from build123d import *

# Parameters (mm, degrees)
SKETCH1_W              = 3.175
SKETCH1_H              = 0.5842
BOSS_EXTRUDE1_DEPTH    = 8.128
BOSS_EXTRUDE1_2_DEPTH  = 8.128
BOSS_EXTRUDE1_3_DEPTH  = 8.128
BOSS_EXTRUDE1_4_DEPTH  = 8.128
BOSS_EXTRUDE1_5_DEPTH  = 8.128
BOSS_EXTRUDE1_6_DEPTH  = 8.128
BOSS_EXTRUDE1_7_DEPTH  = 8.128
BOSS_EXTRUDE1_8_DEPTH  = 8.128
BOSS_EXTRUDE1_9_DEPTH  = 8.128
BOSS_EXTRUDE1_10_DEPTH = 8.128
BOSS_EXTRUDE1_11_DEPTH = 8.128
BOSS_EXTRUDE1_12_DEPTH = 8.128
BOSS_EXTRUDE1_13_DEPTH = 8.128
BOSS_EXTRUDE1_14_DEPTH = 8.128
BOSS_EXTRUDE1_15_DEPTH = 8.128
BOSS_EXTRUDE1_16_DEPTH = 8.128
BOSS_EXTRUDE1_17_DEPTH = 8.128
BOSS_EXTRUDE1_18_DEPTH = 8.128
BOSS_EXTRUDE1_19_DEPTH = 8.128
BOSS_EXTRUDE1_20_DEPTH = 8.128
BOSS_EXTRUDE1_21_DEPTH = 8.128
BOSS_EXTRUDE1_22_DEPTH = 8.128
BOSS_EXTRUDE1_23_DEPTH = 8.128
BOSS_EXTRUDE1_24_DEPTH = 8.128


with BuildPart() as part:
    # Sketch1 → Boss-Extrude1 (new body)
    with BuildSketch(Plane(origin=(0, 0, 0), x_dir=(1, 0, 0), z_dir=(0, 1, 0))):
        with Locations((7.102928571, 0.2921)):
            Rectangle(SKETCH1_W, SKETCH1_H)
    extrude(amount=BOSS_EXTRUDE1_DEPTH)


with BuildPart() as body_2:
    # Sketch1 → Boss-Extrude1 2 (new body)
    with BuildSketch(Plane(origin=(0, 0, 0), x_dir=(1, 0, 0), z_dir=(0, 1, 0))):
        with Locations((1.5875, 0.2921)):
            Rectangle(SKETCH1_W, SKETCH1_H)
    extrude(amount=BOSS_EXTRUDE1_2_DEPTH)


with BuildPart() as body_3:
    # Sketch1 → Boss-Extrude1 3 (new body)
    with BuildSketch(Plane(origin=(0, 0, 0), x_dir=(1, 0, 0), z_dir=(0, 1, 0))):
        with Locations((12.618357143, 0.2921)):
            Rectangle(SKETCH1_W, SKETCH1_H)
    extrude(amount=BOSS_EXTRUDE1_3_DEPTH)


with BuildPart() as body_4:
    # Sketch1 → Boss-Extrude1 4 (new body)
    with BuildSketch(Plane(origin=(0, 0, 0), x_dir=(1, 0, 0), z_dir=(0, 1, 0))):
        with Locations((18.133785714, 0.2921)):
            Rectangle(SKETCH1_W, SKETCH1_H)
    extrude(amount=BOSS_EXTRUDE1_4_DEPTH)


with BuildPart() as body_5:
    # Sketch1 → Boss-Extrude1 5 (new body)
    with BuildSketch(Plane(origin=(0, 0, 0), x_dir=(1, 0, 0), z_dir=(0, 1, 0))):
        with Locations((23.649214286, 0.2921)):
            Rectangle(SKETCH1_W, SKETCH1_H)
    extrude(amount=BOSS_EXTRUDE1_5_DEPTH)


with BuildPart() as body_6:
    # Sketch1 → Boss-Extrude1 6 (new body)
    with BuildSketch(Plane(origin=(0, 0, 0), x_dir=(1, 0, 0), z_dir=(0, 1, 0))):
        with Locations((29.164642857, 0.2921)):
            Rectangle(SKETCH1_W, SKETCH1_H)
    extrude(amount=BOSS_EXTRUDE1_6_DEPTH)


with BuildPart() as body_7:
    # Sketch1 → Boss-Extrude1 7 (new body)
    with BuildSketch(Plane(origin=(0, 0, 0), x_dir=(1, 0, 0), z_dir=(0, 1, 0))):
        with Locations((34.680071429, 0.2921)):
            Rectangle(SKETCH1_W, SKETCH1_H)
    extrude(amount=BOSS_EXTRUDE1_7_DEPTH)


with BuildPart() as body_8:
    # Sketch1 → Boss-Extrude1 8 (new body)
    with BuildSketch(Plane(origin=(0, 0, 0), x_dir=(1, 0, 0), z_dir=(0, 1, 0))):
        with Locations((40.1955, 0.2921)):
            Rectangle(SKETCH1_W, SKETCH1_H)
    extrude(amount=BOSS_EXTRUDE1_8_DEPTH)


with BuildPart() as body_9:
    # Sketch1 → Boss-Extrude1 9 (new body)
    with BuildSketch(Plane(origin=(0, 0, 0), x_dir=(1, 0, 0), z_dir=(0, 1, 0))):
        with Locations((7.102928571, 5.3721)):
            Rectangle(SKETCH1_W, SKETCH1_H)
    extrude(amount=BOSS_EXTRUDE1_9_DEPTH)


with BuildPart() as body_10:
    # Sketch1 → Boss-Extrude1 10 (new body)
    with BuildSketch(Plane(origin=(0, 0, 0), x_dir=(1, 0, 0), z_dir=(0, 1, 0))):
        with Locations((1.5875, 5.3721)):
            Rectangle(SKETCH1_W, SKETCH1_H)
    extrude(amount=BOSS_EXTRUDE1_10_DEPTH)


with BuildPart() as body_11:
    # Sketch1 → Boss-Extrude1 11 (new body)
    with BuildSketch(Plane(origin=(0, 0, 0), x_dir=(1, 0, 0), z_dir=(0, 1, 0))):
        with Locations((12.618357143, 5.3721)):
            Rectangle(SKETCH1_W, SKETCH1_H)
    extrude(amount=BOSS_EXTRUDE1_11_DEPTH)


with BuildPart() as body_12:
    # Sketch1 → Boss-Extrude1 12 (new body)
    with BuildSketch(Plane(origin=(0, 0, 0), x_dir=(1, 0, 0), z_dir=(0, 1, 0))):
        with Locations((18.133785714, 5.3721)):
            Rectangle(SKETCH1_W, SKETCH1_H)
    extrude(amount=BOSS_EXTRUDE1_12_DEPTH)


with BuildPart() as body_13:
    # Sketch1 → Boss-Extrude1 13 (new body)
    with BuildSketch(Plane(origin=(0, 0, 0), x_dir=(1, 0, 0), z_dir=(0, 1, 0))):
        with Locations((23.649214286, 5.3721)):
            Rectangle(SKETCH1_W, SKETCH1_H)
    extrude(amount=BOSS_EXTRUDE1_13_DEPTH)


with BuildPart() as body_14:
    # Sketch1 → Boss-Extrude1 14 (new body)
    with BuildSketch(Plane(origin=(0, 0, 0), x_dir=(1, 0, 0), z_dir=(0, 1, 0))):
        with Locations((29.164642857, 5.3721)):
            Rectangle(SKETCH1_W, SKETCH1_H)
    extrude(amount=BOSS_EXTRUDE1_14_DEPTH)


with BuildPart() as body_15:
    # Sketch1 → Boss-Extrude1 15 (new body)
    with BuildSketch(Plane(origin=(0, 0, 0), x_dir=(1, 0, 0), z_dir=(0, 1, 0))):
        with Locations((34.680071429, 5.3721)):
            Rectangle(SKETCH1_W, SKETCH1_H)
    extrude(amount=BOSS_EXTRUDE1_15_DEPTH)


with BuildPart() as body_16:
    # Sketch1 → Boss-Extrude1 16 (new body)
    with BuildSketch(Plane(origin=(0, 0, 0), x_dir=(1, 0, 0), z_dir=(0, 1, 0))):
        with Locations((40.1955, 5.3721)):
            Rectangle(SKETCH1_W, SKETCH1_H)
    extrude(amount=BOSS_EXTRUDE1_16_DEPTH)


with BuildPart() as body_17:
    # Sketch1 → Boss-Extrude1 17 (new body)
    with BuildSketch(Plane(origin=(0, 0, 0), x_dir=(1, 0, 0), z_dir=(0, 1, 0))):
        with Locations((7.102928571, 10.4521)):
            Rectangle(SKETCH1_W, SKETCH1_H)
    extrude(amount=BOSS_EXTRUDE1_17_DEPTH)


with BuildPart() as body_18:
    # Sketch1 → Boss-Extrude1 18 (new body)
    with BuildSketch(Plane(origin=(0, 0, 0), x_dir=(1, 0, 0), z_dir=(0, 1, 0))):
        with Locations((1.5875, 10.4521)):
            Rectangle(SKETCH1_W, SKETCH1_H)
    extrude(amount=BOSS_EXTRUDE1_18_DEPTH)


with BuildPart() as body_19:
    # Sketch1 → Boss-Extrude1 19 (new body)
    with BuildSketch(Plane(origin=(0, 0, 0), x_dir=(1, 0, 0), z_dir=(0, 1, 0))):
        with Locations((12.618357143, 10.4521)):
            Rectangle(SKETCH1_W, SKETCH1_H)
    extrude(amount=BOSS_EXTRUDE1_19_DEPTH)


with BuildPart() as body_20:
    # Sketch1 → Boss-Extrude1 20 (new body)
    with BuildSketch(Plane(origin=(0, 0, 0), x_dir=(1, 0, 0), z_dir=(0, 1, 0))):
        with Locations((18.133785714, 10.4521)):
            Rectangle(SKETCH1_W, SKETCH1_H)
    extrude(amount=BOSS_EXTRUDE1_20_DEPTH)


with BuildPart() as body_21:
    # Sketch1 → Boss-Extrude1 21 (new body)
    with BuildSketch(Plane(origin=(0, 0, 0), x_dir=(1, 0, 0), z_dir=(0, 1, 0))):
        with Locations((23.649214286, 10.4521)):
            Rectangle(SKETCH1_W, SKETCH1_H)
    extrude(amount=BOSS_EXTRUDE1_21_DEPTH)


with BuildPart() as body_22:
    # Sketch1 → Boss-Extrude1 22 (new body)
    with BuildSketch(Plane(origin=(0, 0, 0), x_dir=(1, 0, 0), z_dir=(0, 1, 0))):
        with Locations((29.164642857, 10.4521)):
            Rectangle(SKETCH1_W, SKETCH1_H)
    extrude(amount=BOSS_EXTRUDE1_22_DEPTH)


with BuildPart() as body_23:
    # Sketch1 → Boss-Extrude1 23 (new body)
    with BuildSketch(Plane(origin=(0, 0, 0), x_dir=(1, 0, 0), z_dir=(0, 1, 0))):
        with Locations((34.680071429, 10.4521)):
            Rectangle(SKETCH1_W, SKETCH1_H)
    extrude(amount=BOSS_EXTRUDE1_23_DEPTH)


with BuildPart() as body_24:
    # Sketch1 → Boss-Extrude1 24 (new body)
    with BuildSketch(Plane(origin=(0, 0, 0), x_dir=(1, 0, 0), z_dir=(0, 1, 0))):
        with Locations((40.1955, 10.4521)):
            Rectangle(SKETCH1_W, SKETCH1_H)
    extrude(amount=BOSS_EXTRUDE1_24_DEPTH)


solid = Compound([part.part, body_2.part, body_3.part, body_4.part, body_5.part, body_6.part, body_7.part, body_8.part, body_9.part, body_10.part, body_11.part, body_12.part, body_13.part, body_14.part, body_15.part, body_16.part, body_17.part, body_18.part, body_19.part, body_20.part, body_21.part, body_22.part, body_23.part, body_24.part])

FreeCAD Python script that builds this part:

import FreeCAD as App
import Part
import Sketcher
from FreeCAD import Vector
Q = App.Units.Quantity

doc = App.newDocument("Part")
body = doc.addObject("PartDesign::Body", "Body")

# Sketch on XZ plane
sketch1 = body.newObject("Sketcher::SketchObject", "Sketch")
sketch1.AttachmentSupport = (doc.getObject("XZ_Plane"), [""])
sketch1.MapMode = "FlatFace"
sketch1.addGeometry(Part.LineSegment(Vector(5.5, -0.6, 0), Vector(5.5, 0, 0)), False)
sketch1.addGeometry(Part.LineSegment(Vector(5.5, 0, 0), Vector(8.7, 0, 0)), False)
sketch1.addGeometry(Part.LineSegment(Vector(8.7, 0, 0), Vector(8.7, -0.6, 0)), False)
sketch1.addGeometry(Part.LineSegment(Vector(8.7, -0.6, 0), Vector(5.5, -0.6, 0)), False)
sketch1.addConstraint(Sketcher.Constraint("Coincident", 0, 2, 1, 1))
sketch1.addConstraint(Sketcher.Constraint("Coincident", 1, 2, 2, 1))
sketch1.addConstraint(Sketcher.Constraint("Coincident", 2, 2, 3, 1))
sketch1.addConstraint(Sketcher.Constraint("Coincident", 3, 2, 0, 1))
sketch1.addConstraint(Sketcher.Constraint("Vertical", 0))
sketch1.addConstraint(Sketcher.Constraint("Horizontal", 1))
sketch1.addConstraint(Sketcher.Constraint("Vertical", 2))
sketch1.addConstraint(Sketcher.Constraint("Horizontal", 3))
sketch1.addConstraint(Sketcher.Constraint("PointOnObject", 0, 2, -1))
sketch1.addConstraint(Sketcher.Constraint("DistanceX", 1, 1, 1, 2, Q("0.125 in")))
sketch1.addConstraint(Sketcher.Constraint("DistanceY", 0, 1, 0, 2, Q("0.023 in")))
sketch1.addConstraint(Sketcher.Constraint("DistanceX", -1, 1, 0, 2, Q("5.515429 mm")))
pad1 = body.newObject("PartDesign::Pad", "Pad")
pad1.Profile = sketch1
pad1.Length = Q("0.32 in")
pad1.Reversed = True
body2 = doc.addObject("PartDesign::Body", "Body001")

# Sketch on XZ plane
sketch2 = body2.newObject("Sketcher::SketchObject", "Sketch001")
sketch2.AttachmentSupport = (doc.getObject("XZ_Plane001"), [""])
sketch2.MapMode = "FlatFace"
sketch2.addGeometry(Part.LineSegment(Vector(0, -0.6, 0), Vector(0, 0, 0)), False)
sketch2.addGeometry(Part.LineSegment(Vector(0, 0, 0), Vector(3.2, 0, 0)), False)
sketch2.addGeometry(Part.LineSegment(Vector(3.2, 0, 0), Vector(3.2, -0.6, 0)), False)
sketch2.addGeometry(Part.LineSegment(Vector(3.2, -0.6, 0), Vector(0, -0.6, 0)), False)
sketch2.addConstraint(Sketcher.Constraint("Coincident", 0, 2, 1, 1))
sketch2.addConstraint(Sketcher.Constraint("Coincident", 1, 2, 2, 1))
sketch2.addConstraint(Sketcher.Constraint("Coincident", 2, 2, 3, 1))
sketch2.addConstraint(Sketcher.Constraint("Coincident", 3, 2, 0, 1))
sketch2.addConstraint(Sketcher.Constraint("Vertical", 0))
sketch2.addConstraint(Sketcher.Constraint("Horizontal", 1))
sketch2.addConstraint(Sketcher.Constraint("Vertical", 2))
sketch2.addConstraint(Sketcher.Constraint("Horizontal", 3))
sketch2.addConstraint(Sketcher.Constraint("Coincident", 0, 2, -1, 1))
sketch2.addConstraint(Sketcher.Constraint("DistanceX", 1, 1, 1, 2, Q("0.125 in")))
sketch2.addConstraint(Sketcher.Constraint("DistanceY", 0, 1, 0, 2, Q("0.023 in")))
pad2 = body2.newObject("PartDesign::Pad", "Pad001")
pad2.Profile = sketch2
pad2.Length = Q("0.32 in")
pad2.Reversed = True
body3 = doc.addObject("PartDesign::Body", "Body002")

# Sketch on XZ plane
sketch3 = body3.newObject("Sketcher::SketchObject", "Sketch002")
sketch3.AttachmentSupport = (doc.getObject("XZ_Plane002"), [""])
sketch3.MapMode = "FlatFace"
sketch3.addGeometry(Part.LineSegment(Vector(11, -0.6, 0), Vector(11, 0, 0)), False)
sketch3.addGeometry(Part.LineSegment(Vector(11, 0, 0), Vector(14.2, 0, 0)), False)
sketch3.addGeometry(Part.LineSegment(Vector(14.2, 0, 0), Vector(14.2, -0.6, 0)), False)
sketch3.addGeometry(Part.LineSegment(Vector(14.2, -0.6, 0), Vector(11, -0.6, 0)), False)
sketch3.addConstraint(Sketcher.Constraint("Coincident", 0, 2, 1, 1))
sketch3.addConstraint(Sketcher.Constraint("Coincident", 1, 2, 2, 1))
sketch3.addConstraint(Sketcher.Constraint("Coincident", 2, 2, 3, 1))
sketch3.addConstraint(Sketcher.Constraint("Coincident", 3, 2, 0, 1))
sketch3.addConstraint(Sketcher.Constraint("Vertical", 0))
sketch3.addConstraint(Sketcher.Constraint("Horizontal", 1))
sketch3.addConstraint(Sketcher.Constraint("Vertical", 2))
sketch3.addConstraint(Sketcher.Constraint("Horizontal", 3))
sketch3.addConstraint(Sketcher.Constraint("PointOnObject", 0, 2, -1))
sketch3.addConstraint(Sketcher.Constraint("DistanceX", 1, 1, 1, 2, Q("0.125 in")))
sketch3.addConstraint(Sketcher.Constraint("DistanceY", 0, 1, 0, 2, Q("0.023 in")))
sketch3.addConstraint(Sketcher.Constraint("DistanceX", -1, 1, 0, 2, Q("11.030857 mm")))
pad3 = body3.newObject("PartDesign::Pad", "Pad002")
pad3.Profile = sketch3
pad3.Length = Q("0.32 in")
pad3.Reversed = True
body4 = doc.addObject("PartDesign::Body", "Body003")

# Sketch on XZ plane
sketch4 = body4.newObject("Sketcher::SketchObject", "Sketch003")
sketch4.AttachmentSupport = (doc.getObject("XZ_Plane003"), [""])
sketch4.MapMode = "FlatFace"
sketch4.addGeometry(Part.LineSegment(Vector(16.5, -0.6, 0), Vector(16.5, 0, 0)), False)
sketch4.addGeometry(Part.LineSegment(Vector(16.5, 0, 0), Vector(19.7, 0, 0)), False)
sketch4.addGeometry(Part.LineSegment(Vector(19.7, 0, 0), Vector(19.7, -0.6, 0)), False)
sketch4.addGeometry(Part.LineSegment(Vector(19.7, -0.6, 0), Vector(16.5, -0.6, 0)), False)
sketch4.addConstraint(Sketcher.Constraint("Coincident", 0, 2, 1, 1))
sketch4.addConstraint(Sketcher.Constraint("Coincident", 1, 2, 2, 1))
sketch4.addConstraint(Sketcher.Constraint("Coincident", 2, 2, 3, 1))
sketch4.addConstraint(Sketcher.Constraint("Coincident", 3, 2, 0, 1))
sketch4.addConstraint(Sketcher.Constraint("Vertical", 0))
sketch4.addConstraint(Sketcher.Constraint("Horizontal", 1))
sketch4.addConstraint(Sketcher.Constraint("Vertical", 2))
sketch4.addConstraint(Sketcher.Constraint("Horizontal", 3))
sketch4.addConstraint(Sketcher.Constraint("PointOnObject", 0, 2, -1))
sketch4.addConstraint(Sketcher.Constraint("DistanceX", 1, 1, 1, 2, Q("0.125 in")))
sketch4.addConstraint(Sketcher.Constraint("DistanceY", 0, 1, 0, 2, Q("0.023 in")))
sketch4.addConstraint(Sketcher.Constraint("DistanceX", -1, 1, 0, 2, Q("16.546286 mm")))
pad4 = body4.newObject("PartDesign::Pad", "Pad003")
pad4.Profile = sketch4
pad4.Length = Q("0.32 in")
pad4.Reversed = True
body5 = doc.addObject("PartDesign::Body", "Body004")

# Sketch on XZ plane
sketch5 = body5.newObject("Sketcher::SketchObject", "Sketch004")
sketch5.AttachmentSupport = (doc.getObject("XZ_Plane004"), [""])
sketch5.MapMode = "FlatFace"
sketch5.addGeometry(Part.LineSegment(Vector(22.1, -0.6, 0), Vector(22.1, 0, 0)), False)
sketch5.addGeometry(Part.LineSegment(Vector(22.1, 0, 0), Vector(25.2, 0, 0)), False)
sketch5.addGeometry(Part.LineSegment(Vector(25.2, 0, 0), Vector(25.2, -0.6, 0)), False)
sketch5.addGeometry(Part.LineSegment(Vector(25.2, -0.6, 0), Vector(22.1, -0.6, 0)), False)
sketch5.addConstraint(Sketcher.Constraint("Coincident", 0, 2, 1, 1))
sketch5.addConstraint(Sketcher.Constraint("Coincident", 1, 2, 2, 1))
sketch5.addConstraint(Sketcher.Constraint("Coincident", 2, 2, 3, 1))
sketch5.addConstraint(Sketcher.Constraint("Coincident", 3, 2, 0, 1))
sketch5.addConstraint(Sketcher.Constraint("Vertical", 0))
sketch5.addConstraint(Sketcher.Constraint("Horizontal", 1))
sketch5.addConstraint(Sketcher.Constraint("Vertical", 2))
sketch5.addConstraint(Sketcher.Constraint("Horizontal", 3))
sketch5.addConstraint(Sketcher.Constraint("PointOnObject", 0, 2, -1))
sketch5.addConstraint(Sketcher.Constraint("DistanceX", 1, 1, 1, 2, Q("0.125 in")))
sketch5.addConstraint(Sketcher.Constraint("DistanceY", 0, 1, 0, 2, Q("0.023 in")))
sketch5.addConstraint(Sketcher.Constraint("DistanceX", -1, 1, 0, 2, Q("22.061714 mm")))
pad5 = body5.newObject("PartDesign::Pad", "Pad004")
pad5.Profile = sketch5
pad5.Length = Q("0.32 in")
pad5.Reversed = True
body6 = doc.addObject("PartDesign::Body", "Body005")

# Sketch on XZ plane
sketch6 = body6.newObject("Sketcher::SketchObject", "Sketch005")
sketch6.AttachmentSupport = (doc.getObject("XZ_Plane005"), [""])
sketch6.MapMode = "FlatFace"
sketch6.addGeometry(Part.LineSegment(Vector(27.6, -0.6, 0), Vector(27.6, 0, 0)), False)
sketch6.addGeometry(Part.LineSegment(Vector(27.6, 0, 0), Vector(30.8, 0, 0)), False)
sketch6.addGeometry(Part.LineSegment(Vector(30.8, 0, 0), Vector(30.8, -0.6, 0)), False)
sketch6.addGeometry(Part.LineSegment(Vector(30.8, -0.6, 0), Vector(27.6, -0.6, 0)), False)
sketch6.addConstraint(Sketcher.Constraint("Coincident", 0, 2, 1, 1))
sketch6.addConstraint(Sketcher.Constraint("Coincident", 1, 2, 2, 1))
sketch6.addConstraint(Sketcher.Constraint("Coincident", 2, 2, 3, 1))
sketch6.addConstraint(Sketcher.Constraint("Coincident", 3, 2, 0, 1))
sketch6.addConstraint(Sketcher.Constraint("Vertical", 0))
sketch6.addConstraint(Sketcher.Constraint("Horizontal", 1))
sketch6.addConstraint(Sketcher.Constraint("Vertical", 2))
sketch6.addConstraint(Sketcher.Constraint("Horizontal", 3))
sketch6.addConstraint(Sketcher.Constraint("PointOnObject", 0, 2, -1))
sketch6.addConstraint(Sketcher.Constraint("DistanceX", 1, 1, 1, 2, Q("0.125 in")))
sketch6.addConstraint(Sketcher.Constraint("DistanceY", 0, 1, 0, 2, Q("0.023 in")))
sketch6.addConstraint(Sketcher.Constraint("DistanceX", -1, 1, 0, 2, Q("27.577143 mm")))
pad6 = body6.newObject("PartDesign::Pad", "Pad005")
pad6.Profile = sketch6
pad6.Length = Q("0.32 in")
pad6.Reversed = True
body7 = doc.addObject("PartDesign::Body", "Body006")

# Sketch on XZ plane
sketch7 = body7.newObject("Sketcher::SketchObject", "Sketch006")
sketch7.AttachmentSupport = (doc.getObject("XZ_Plane006"), [""])
sketch7.MapMode = "FlatFace"
sketch7.addGeometry(Part.LineSegment(Vector(33.1, -0.6, 0), Vector(33.1, 0, 0)), False)
sketch7.addGeometry(Part.LineSegment(Vector(33.1, 0, 0), Vector(36.3, 0, 0)), False)
sketch7.addGeometry(Part.LineSegment(Vector(36.3, 0, 0), Vector(36.3, -0.6, 0)), False)
sketch7.addGeometry(Part.LineSegment(Vector(36.3, -0.6, 0), Vector(33.1, -0.6, 0)), False)
sketch7.addConstraint(Sketcher.Constraint("Coincident", 0, 2, 1, 1))
sketch7.addConstraint(Sketcher.Constraint("Coincident", 1, 2, 2, 1))
sketch7.addConstraint(Sketcher.Constraint("Coincident", 2, 2, 3, 1))
sketch7.addConstraint(Sketcher.Constraint("Coincident", 3, 2, 0, 1))
sketch7.addConstraint(Sketcher.Constraint("Vertical", 0))
sketch7.addConstraint(Sketcher.Constraint("Horizontal", 1))
sketch7.addConstraint(Sketcher.Constraint("Vertical", 2))
sketch7.addConstraint(Sketcher.Constraint("Horizontal", 3))
sketch7.addConstraint(Sketcher.Constraint("PointOnObject", 0, 2, -1))
sketch7.addConstraint(Sketcher.Constraint("DistanceX", 1, 1, 1, 2, Q("0.125 in")))
sketch7.addConstraint(Sketcher.Constraint("DistanceY", 0, 1, 0, 2, Q("0.023 in")))
sketch7.addConstraint(Sketcher.Constraint("DistanceX", -1, 1, 0, 2, Q("33.092571 mm")))
pad7 = body7.newObject("PartDesign::Pad", "Pad006")
pad7.Profile = sketch7
pad7.Length = Q("0.32 in")
pad7.Reversed = True
body8 = doc.addObject("PartDesign::Body", "Body007")

# Sketch on XZ plane
sketch8 = body8.newObject("Sketcher::SketchObject", "Sketch007")
sketch8.AttachmentSupport = (doc.getObject("XZ_Plane007"), [""])
sketch8.MapMode = "FlatFace"
sketch8.addGeometry(Part.LineSegment(Vector(38.6, -0.6, 0), Vector(38.6, 0, 0)), False)
sketch8.addGeometry(Part.LineSegment(Vector(38.6, 0, 0), Vector(41.8, 0, 0)), False)
sketch8.addGeometry(Part.LineSegment(Vector(41.8, 0, 0), Vector(41.8, -0.6, 0)), False)
sketch8.addGeometry(Part.LineSegment(Vector(41.8, -0.6, 0), Vector(38.6, -0.6, 0)), False)
sketch8.addConstraint(Sketcher.Constraint("Coincident", 0, 2, 1, 1))
sketch8.addConstraint(Sketcher.Constraint("Coincident", 1, 2, 2, 1))
sketch8.addConstraint(Sketcher.Constraint("Coincident", 2, 2, 3, 1))
sketch8.addConstraint(Sketcher.Constraint("Coincident", 3, 2, 0, 1))
sketch8.addConstraint(Sketcher.Constraint("Vertical", 0))
sketch8.addConstraint(Sketcher.Constraint("Horizontal", 1))
sketch8.addConstraint(Sketcher.Constraint("Vertical", 2))
sketch8.addConstraint(Sketcher.Constraint("Horizontal", 3))
sketch8.addConstraint(Sketcher.Constraint("PointOnObject", 0, 2, -1))
sketch8.addConstraint(Sketcher.Constraint("DistanceX", 1, 1, 1, 2, Q("0.125 in")))
sketch8.addConstraint(Sketcher.Constraint("DistanceY", 0, 1, 0, 2, Q("0.023 in")))
sketch8.addConstraint(Sketcher.Constraint("DistanceX", -1, 1, 0, 2, Q("1.52 in")))
pad8 = body8.newObject("PartDesign::Pad", "Pad007")
pad8.Profile = sketch8
pad8.Length = Q("0.32 in")
pad8.Reversed = True
body9 = doc.addObject("PartDesign::Body", "Body008")

# Sketch on XZ plane
sketch9 = body9.newObject("Sketcher::SketchObject", "Sketch008")
sketch9.AttachmentSupport = (doc.getObject("XZ_Plane008"), [""])
sketch9.MapMode = "FlatFace"
sketch9.addGeometry(Part.LineSegment(Vector(5.5, -5.7, 0), Vector(5.5, -5.1, 0)), False)
sketch9.addGeometry(Part.LineSegment(Vector(5.5, -5.1, 0), Vector(8.7, -5.1, 0)), False)
sketch9.addGeometry(Part.LineSegment(Vector(8.7, -5.1, 0), Vector(8.7, -5.7, 0)), False)
sketch9.addGeometry(Part.LineSegment(Vector(8.7, -5.7, 0), Vector(5.5, -5.7, 0)), False)
sketch9.addConstraint(Sketcher.Constraint("Coincident", 0, 2, 1, 1))
sketch9.addConstraint(Sketcher.Constraint("Coincident", 1, 2, 2, 1))
sketch9.addConstraint(Sketcher.Constraint("Coincident", 2, 2, 3, 1))
sketch9.addConstraint(Sketcher.Constraint("Coincident", 3, 2, 0, 1))
sketch9.addConstraint(Sketcher.Constraint("Vertical", 0))
sketch9.addConstraint(Sketcher.Constraint("Horizontal", 1))
sketch9.addConstraint(Sketcher.Constraint("Vertical", 2))
sketch9.addConstraint(Sketcher.Constraint("Horizontal", 3))
sketch9.addConstraint(Sketcher.Constraint("DistanceY", 0, 2, -1, 1, Q("0.2 in")))
sketch9.addConstraint(Sketcher.Constraint("DistanceX", 1, 1, 1, 2, Q("0.125 in")))
sketch9.addConstraint(Sketcher.Constraint("DistanceY", 0, 1, 0, 2, Q("0.023 in")))
sketch9.addConstraint(Sketcher.Constraint("DistanceX", -1, 1, 0, 2, Q("5.515429 mm")))
pad9 = body9.newObject("PartDesign::Pad", "Pad008")
pad9.Profile = sketch9
pad9.Length = Q("0.32 in")
pad9.Reversed = True
body10 = doc.addObject("PartDesign::Body", "Body009")

# Sketch on XZ plane
sketch10 = body10.newObject("Sketcher::SketchObject", "Sketch009")
sketch10.AttachmentSupport = (doc.getObject("XZ_Plane009"), [""])
sketch10.MapMode = "FlatFace"
sketch10.addGeometry(Part.LineSegment(Vector(0, -5.7, 0), Vector(0, -5.1, 0)), False)
sketch10.addGeometry(Part.LineSegment(Vector(0, -5.1, 0), Vector(3.2, -5.1, 0)), False)
sketch10.addGeometry(Part.LineSegment(Vector(3.2, -5.1, 0), Vector(3.2, -5.7, 0)), False)
sketch10.addGeometry(Part.LineSegment(Vector(3.2, -5.7, 0), Vector(0, -5.7, 0)), False)
sketch10.addConstraint(Sketcher.Constraint("Coincident", 0, 2, 1, 1))
sketch10.addConstraint(Sketcher.Constraint("Coincident", 1, 2, 2, 1))
sketch10.addConstraint(Sketcher.Constraint("Coincident", 2, 2, 3, 1))
sketch10.addConstraint(Sketcher.Constraint("Coincident", 3, 2, 0, 1))
sketch10.addConstraint(Sketcher.Constraint("Vertical", 0))
sketch10.addConstraint(Sketcher.Constraint("Horizontal", 1))
sketch10.addConstraint(Sketcher.Constraint("Vertical", 2))
sketch10.addConstraint(Sketcher.Constraint("Horizontal", 3))
sketch10.addConstraint(Sketcher.Constraint("PointOnObject", 0, 2, -2))
sketch10.addConstraint(Sketcher.Constraint("DistanceY", 0, 2, -1, 1, Q("0.2 in")))
sketch10.addConstraint(Sketcher.Constraint("DistanceX", 1, 1, 1, 2, Q("0.125 in")))
sketch10.addConstraint(Sketcher.Constraint("DistanceY", 0, 1, 0, 2, Q("0.023 in")))
pad10 = body10.newObject("PartDesign::Pad", "Pad009")
pad10.Profile = sketch10
pad10.Length = Q("0.32 in")
pad10.Reversed = True
body11 = doc.addObject("PartDesign::Body", "Body010")

# Sketch on XZ plane
sketch11 = body11.newObject("Sketcher::SketchObject", "Sketch010")
sketch11.AttachmentSupport = (doc.getObject("XZ_Plane010"), [""])
sketch11.MapMode = "FlatFace"
sketch11.addGeometry(Part.LineSegment(Vector(11, -5.7, 0), Vector(11, -5.1, 0)), False)
sketch11.addGeometry(Part.LineSegment(Vector(11, -5.1, 0), Vector(14.2, -5.1, 0)), False)
sketch11.addGeometry(Part.LineSegment(Vector(14.2, -5.1, 0), Vector(14.2, -5.7, 0)), False)
sketch11.addGeometry(Part.LineSegment(Vector(14.2, -5.7, 0), Vector(11, -5.7, 0)), False)
sketch11.addConstraint(Sketcher.Constraint("Coincident", 0, 2, 1, 1))
sketch11.addConstraint(Sketcher.Constraint("Coincident", 1, 2, 2, 1))
sketch11.addConstraint(Sketcher.Constraint("Coincident", 2, 2, 3, 1))
sketch11.addConstraint(Sketcher.Constraint("Coincident", 3, 2, 0, 1))
sketch11.addConstraint(Sketcher.Constraint("Vertical", 0))
sketch11.addConstraint(Sketcher.Constraint("Horizontal", 1))
sketch11.addConstraint(Sketcher.Constraint("Vertical", 2))
sketch11.addConstraint(Sketcher.Constraint("Horizontal", 3))
sketch11.addConstraint(Sketcher.Constraint("DistanceY", 0, 2, -1, 1, Q("0.2 in")))
sketch11.addConstraint(Sketcher.Constraint("DistanceX", 1, 1, 1, 2, Q("0.125 in")))
sketch11.addConstraint(Sketcher.Constraint("DistanceY", 0, 1, 0, 2, Q("0.023 in")))
sketch11.addConstraint(Sketcher.Constraint("DistanceX", -1, 1, 0, 2, Q("11.030857 mm")))
pad11 = body11.newObject("PartDesign::Pad", "Pad010")
pad11.Profile = sketch11
pad11.Length = Q("0.32 in")
pad11.Reversed = True
body12 = doc.addObject("PartDesign::Body", "Body011")

# Sketch on XZ plane
sketch12 = body12.newObject("Sketcher::SketchObject", "Sketch011")
sketch12.AttachmentSupport = (doc.getObject("XZ_Plane011"), [""])
sketch12.MapMode = "FlatFace"
sketch12.addGeometry(Part.LineSegment(Vector(16.5, -5.7, 0), Vector(16.5, -5.1, 0)), False)
sketch12.addGeometry(Part.LineSegment(Vector(16.5, -5.1, 0), Vector(19.7, -5.1, 0)), False)
sketch12.addGeometry(Part.LineSegment(Vector(19.7, -5.1, 0), Vector(19.7, -5.7, 0)), False)
sketch12.addGeometry(Part.LineSegment(Vector(19.7, -5.7, 0), Vector(16.5, -5.7, 0)), False)
sketch12.addConstraint(Sketcher.Constraint("Coincident", 0, 2, 1, 1))
sketch12.addConstraint(Sketcher.Constraint("Coincident", 1, 2, 2, 1))
sketch12.addConstraint(Sketcher.Constraint("Coincident", 2, 2, 3, 1))
sketch12.addConstraint(Sketcher.Constraint("Coincident", 3, 2, 0, 1))
sketch12.addConstraint(Sketcher.Constraint("Vertical", 0))
sketch12.addConstraint(Sketcher.Constraint("Horizontal", 1))
sketch12.addConstraint(Sketcher.Constraint("Vertical", 2))
sketch12.addConstraint(Sketcher.Constraint("Horizontal", 3))
sketch12.addConstraint(Sketcher.Constraint("DistanceY", 0, 2, -1, 1, Q("0.2 in")))
sketch12.addConstraint(Sketcher.Constraint("DistanceX", 1, 1, 1, 2, Q("0.125 in")))
sketch12.addConstraint(Sketcher.Constraint("DistanceY", 0, 1, 0, 2, Q("0.023 in")))
sketch12.addConstraint(Sketcher.Constraint("DistanceX", -1, 1, 0, 2, Q("16.546286 mm")))
pad12 = body12.newObject("PartDesign::Pad", "Pad011")
pad12.Profile = sketch12
pad12.Length = Q("0.32 in")
pad12.Reversed = True
body13 = doc.addObject("PartDesign::Body", "Body012")

# Sketch on XZ plane
sketch13 = body13.newObject("Sketcher::SketchObject", "Sketch012")
sketch13.AttachmentSupport = (doc.getObject("XZ_Plane012"), [""])
sketch13.MapMode = "FlatFace"
sketch13.addGeometry(Part.LineSegment(Vector(22.1, -5.7, 0), Vector(22.1, -5.1, 0)), False)
sketch13.addGeometry(Part.LineSegment(Vector(22.1, -5.1, 0), Vector(25.2, -5.1, 0)), False)
sketch13.addGeometry(Part.LineSegment(Vector(25.2, -5.1, 0), Vector(25.2, -5.7, 0)), False)
sketch13.addGeometry(Part.LineSegment(Vector(25.2, -5.7, 0), Vector(22.1, -5.7, 0)), False)
sketch13.addConstraint(Sketcher.Constraint("Coincident", 0, 2, 1, 1))
sketch13.addConstraint(Sketcher.Constraint("Coincident", 1, 2, 2, 1))
sketch13.addConstraint(Sketcher.Constraint("Coincident", 2, 2, 3, 1))
sketch13.addConstraint(Sketcher.Constraint("Coincident", 3, 2, 0, 1))
sketch13.addConstraint(Sketcher.Constraint("Vertical", 0))
sketch13.addConstraint(Sketcher.Constraint("Horizontal", 1))
sketch13.addConstraint(Sketcher.Constraint("Vertical", 2))
sketch13.addConstraint(Sketcher.Constraint("Horizontal", 3))
sketch13.addConstraint(Sketcher.Constraint("DistanceY", 0, 2, -1, 1, Q("0.2 in")))
sketch13.addConstraint(Sketcher.Constraint("DistanceX", 1, 1, 1, 2, Q("0.125 in")))
sketch13.addConstraint(Sketcher.Constraint("DistanceY", 0, 1, 0, 2, Q("0.023 in")))
sketch13.addConstraint(Sketcher.Constraint("DistanceX", -1, 1, 0, 2, Q("22.061714 mm")))
pad13 = body13.newObject("PartDesign::Pad", "Pad012")
pad13.Profile = sketch13
pad13.Length = Q("0.32 in")
pad13.Reversed = True
body14 = doc.addObject("PartDesign::Body", "Body013")

# Sketch on XZ plane
sketch14 = body14.newObject("Sketcher::SketchObject", "Sketch013")
sketch14.AttachmentSupport = (doc.getObject("XZ_Plane013"), [""])
sketch14.MapMode = "FlatFace"
sketch14.addGeometry(Part.LineSegment(Vector(27.6, -5.7, 0), Vector(27.6, -5.1, 0)), False)
sketch14.addGeometry(Part.LineSegment(Vector(27.6, -5.1, 0), Vector(30.8, -5.1, 0)), False)
sketch14.addGeometry(Part.LineSegment(Vector(30.8, -5.1, 0), Vector(30.8, -5.7, 0)), False)
sketch14.addGeometry(Part.LineSegment(Vector(30.8, -5.7, 0), Vector(27.6, -5.7, 0)), False)
sketch14.addConstraint(Sketcher.Constraint("Coincident", 0, 2, 1, 1))
sketch14.addConstraint(Sketcher.Constraint("Coincident", 1, 2, 2, 1))
sketch14.addConstraint(Sketcher.Constraint("Coincident", 2, 2, 3, 1))
sketch14.addConstraint(Sketcher.Constraint("Coincident", 3, 2, 0, 1))
sketch14.addConstraint(Sketcher.Constraint("Vertical", 0))
sketch14.addConstraint(Sketcher.Constraint("Horizontal", 1))
sketch14.addConstraint(Sketcher.Constraint("Vertical", 2))
sketch14.addConstraint(Sketcher.Constraint("Horizontal", 3))
sketch14.addConstraint(Sketcher.Constraint("DistanceY", 0, 2, -1, 1, Q("0.2 in")))
sketch14.addConstraint(Sketcher.Constraint("DistanceX", 1, 1, 1, 2, Q("0.125 in")))
sketch14.addConstraint(Sketcher.Constraint("DistanceY", 0, 1, 0, 2, Q("0.023 in")))
sketch14.addConstraint(Sketcher.Constraint("DistanceX", -1, 1, 0, 2, Q("27.577143 mm")))
pad14 = body14.newObject("PartDesign::Pad", "Pad013")
pad14.Profile = sketch14
pad14.Length = Q("0.32 in")
pad14.Reversed = True
body15 = doc.addObject("PartDesign::Body", "Body014")

# Sketch on XZ plane
sketch15 = body15.newObject("Sketcher::SketchObject", "Sketch014")
sketch15.AttachmentSupport = (doc.getObject("XZ_Plane014"), [""])
sketch15.MapMode = "FlatFace"
sketch15.addGeometry(Part.LineSegment(Vector(33.1, -5.7, 0), Vector(33.1, -5.1, 0)), False)
sketch15.addGeometry(Part.LineSegment(Vector(33.1, -5.1, 0), Vector(36.3, -5.1, 0)), False)
sketch15.addGeometry(Part.LineSegment(Vector(36.3, -5.1, 0), Vector(36.3, -5.7, 0)), False)
sketch15.addGeometry(Part.LineSegment(Vector(36.3, -5.7, 0), Vector(33.1, -5.7, 0)), False)
sketch15.addConstraint(Sketcher.Constraint("Coincident", 0, 2, 1, 1))
sketch15.addConstraint(Sketcher.Constraint("Coincident", 1, 2, 2, 1))
sketch15.addConstraint(Sketcher.Constraint("Coincident", 2, 2, 3, 1))
sketch15.addConstraint(Sketcher.Constraint("Coincident", 3, 2, 0, 1))
sketch15.addConstraint(Sketcher.Constraint("Vertical", 0))
sketch15.addConstraint(Sketcher.Constraint("Horizontal", 1))
sketch15.addConstraint(Sketcher.Constraint("Vertical", 2))
sketch15.addConstraint(Sketcher.Constraint("Horizontal", 3))
sketch15.addConstraint(Sketcher.Constraint("DistanceY", 0, 2, -1, 1, Q("0.2 in")))
sketch15.addConstraint(Sketcher.Constraint("DistanceX", 1, 1, 1, 2, Q("0.125 in")))
sketch15.addConstraint(Sketcher.Constraint("DistanceY", 0, 1, 0, 2, Q("0.023 in")))
sketch15.addConstraint(Sketcher.Constraint("DistanceX", -1, 1, 0, 2, Q("33.092571 mm")))
pad15 = body15.newObject("PartDesign::Pad", "Pad014")
pad15.Profile = sketch15
pad15.Length = Q("0.32 in")
pad15.Reversed = True
body16 = doc.addObject("PartDesign::Body", "Body015")

# Sketch on XZ plane
sketch16 = body16.newObject("Sketcher::SketchObject", "Sketch015")
sketch16.AttachmentSupport = (doc.getObject("XZ_Plane015"), [""])
sketch16.MapMode = "FlatFace"
sketch16.addGeometry(Part.LineSegment(Vector(38.6, -5.7, 0), Vector(38.6, -5.1, 0)), False)
sketch16.addGeometry(Part.LineSegment(Vector(38.6, -5.1, 0), Vector(41.8, -5.1, 0)), False)
sketch16.addGeometry(Part.LineSegment(Vector(41.8, -5.1, 0), Vector(41.8, -5.7, 0)), False)
sketch16.addGeometry(Part.LineSegment(Vector(41.8, -5.7, 0), Vector(38.6, -5.7, 0)), False)
sketch16.addConstraint(Sketcher.Constraint("Coincident", 0, 2, 1, 1))
sketch16.addConstraint(Sketcher.Constraint("Coincident", 1, 2, 2, 1))
sketch16.addConstraint(Sketcher.Constraint("Coincident", 2, 2, 3, 1))
sketch16.addConstraint(Sketcher.Constraint("Coincident", 3, 2, 0, 1))
sketch16.addConstraint(Sketcher.Constraint("Vertical", 0))
sketch16.addConstraint(Sketcher.Constraint("Horizontal", 1))
sketch16.addConstraint(Sketcher.Constraint("Vertical", 2))
sketch16.addConstraint(Sketcher.Constraint("Horizontal", 3))
sketch16.addConstraint(Sketcher.Constraint("DistanceY", 0, 2, -1, 1, Q("0.2 in")))
sketch16.addConstraint(Sketcher.Constraint("DistanceX", 1, 1, 1, 2, Q("0.125 in")))
sketch16.addConstraint(Sketcher.Constraint("DistanceY", 0, 1, 0, 2, Q("0.023 in")))
sketch16.addConstraint(Sketcher.Constraint("DistanceX", -1, 1, 0, 2, Q("1.52 in")))
pad16 = body16.newObject("PartDesign::Pad", "Pad015")
pad16.Profile = sketch16
pad16.Length = Q("0.32 in")
pad16.Reversed = True
body17 = doc.addObject("PartDesign::Body", "Body016")

# Sketch on XZ plane
sketch17 = body17.newObject("Sketcher::SketchObject", "Sketch016")
sketch17.AttachmentSupport = (doc.getObject("XZ_Plane016"), [""])
sketch17.MapMode = "FlatFace"
sketch17.addGeometry(Part.LineSegment(Vector(5.5, -10.7, 0), Vector(5.5, -10.2, 0)), False)
sketch17.addGeometry(Part.LineSegment(Vector(5.5, -10.2, 0), Vector(8.7, -10.2, 0)), False)
sketch17.addGeometry(Part.LineSegment(Vector(8.7, -10.2, 0), Vector(8.7, -10.7, 0)), False)
sketch17.addGeometry(Part.LineSegment(Vector(8.7, -10.7, 0), Vector(5.5, -10.7, 0)), False)
sketch17.addConstraint(Sketcher.Constraint("Coincident", 0, 2, 1, 1))
sketch17.addConstraint(Sketcher.Constraint("Coincident", 1, 2, 2, 1))
sketch17.addConstraint(Sketcher.Constraint("Coincident", 2, 2, 3, 1))
sketch17.addConstraint(Sketcher.Constraint("Coincident", 3, 2, 0, 1))
sketch17.addConstraint(Sketcher.Constraint("Vertical", 0))
sketch17.addConstraint(Sketcher.Constraint("Horizontal", 1))
sketch17.addConstraint(Sketcher.Constraint("Vertical", 2))
sketch17.addConstraint(Sketcher.Constraint("Horizontal", 3))
sketch17.addConstraint(Sketcher.Constraint("DistanceY", 0, 2, -1, 1, Q("0.4 in")))
sketch17.addConstraint(Sketcher.Constraint("DistanceX", 1, 1, 1, 2, Q("0.125 in")))
sketch17.addConstraint(Sketcher.Constraint("DistanceY", 0, 1, 0, 2, Q("0.023 in")))
sketch17.addConstraint(Sketcher.Constraint("DistanceX", -1, 1, 0, 2, Q("5.515429 mm")))
pad17 = body17.newObject("PartDesign::Pad", "Pad016")
pad17.Profile = sketch17
pad17.Length = Q("0.32 in")
pad17.Reversed = True
body18 = doc.addObject("PartDesign::Body", "Body017")

# Sketch on XZ plane
sketch18 = body18.newObject("Sketcher::SketchObject", "Sketch017")
sketch18.AttachmentSupport = (doc.getObject("XZ_Plane017"), [""])
sketch18.MapMode = "FlatFace"
sketch18.addGeometry(Part.LineSegment(Vector(0, -10.7, 0), Vector(0, -10.2, 0)), False)
sketch18.addGeometry(Part.LineSegment(Vector(0, -10.2, 0), Vector(3.2, -10.2, 0)), False)
sketch18.addGeometry(Part.LineSegment(Vector(3.2, -10.2, 0), Vector(3.2, -10.7, 0)), False)
sketch18.addGeometry(Part.LineSegment(Vector(3.2, -10.7, 0), Vector(0, -10.7, 0)), False)
sketch18.addConstraint(Sketcher.Constraint("Coincident", 0, 2, 1, 1))
sketch18.addConstraint(Sketcher.Constraint("Coincident", 1, 2, 2, 1))
sketch18.addConstraint(Sketcher.Constraint("Coincident", 2, 2, 3, 1))
sketch18.addConstraint(Sketcher.Constraint("Coincident", 3, 2, 0, 1))
sketch18.addConstraint(Sketcher.Constraint("Vertical", 0))
sketch18.addConstraint(Sketcher.Constraint("Horizontal", 1))
sketch18.addConstraint(Sketcher.Constraint("Vertical", 2))
sketch18.addConstraint(Sketcher.Constraint("Horizontal", 3))
sketch18.addConstraint(Sketcher.Constraint("PointOnObject", 0, 2, -2))
sketch18.addConstraint(Sketcher.Constraint("DistanceY", 0, 2, -1, 1, Q("0.4 in")))
sketch18.addConstraint(Sketcher.Constraint("DistanceX", 1, 1, 1, 2, Q("0.125 in")))
sketch18.addConstraint(Sketcher.Constraint("DistanceY", 0, 1, 0, 2, Q("0.023 in")))
pad18 = body18.newObject("PartDesign::Pad", "Pad017")
pad18.Profile = sketch18
pad18.Length = Q("0.32 in")
pad18.Reversed = True
body19 = doc.addObject("PartDesign::Body", "Body018")

# Sketch on XZ plane
sketch19 = body19.newObject("Sketcher::SketchObject", "Sketch018")
sketch19.AttachmentSupport = (doc.getObject("XZ_Plane018"), [""])
sketch19.MapMode = "FlatFace"
sketch19.addGeometry(Part.LineSegment(Vector(11, -10.7, 0), Vector(11, -10.2, 0)), False)
sketch19.addGeometry(Part.LineSegment(Vector(11, -10.2, 0), Vector(14.2, -10.2, 0)), False)
sketch19.addGeometry(Part.LineSegment(Vector(14.2, -10.2, 0), Vector(14.2, -10.7, 0)), False)
sketch19.addGeometry(Part.LineSegment(Vector(14.2, -10.7, 0), Vector(11, -10.7, 0)), False)
sketch19.addConstraint(Sketcher.Constraint("Coincident", 0, 2, 1, 1))
sketch19.addConstraint(Sketcher.Constraint("Coincident", 1, 2, 2, 1))
sketch19.addConstraint(Sketcher.Constraint("Coincident", 2, 2, 3, 1))
sketch19.addConstraint(Sketcher.Constraint("Coincident", 3, 2, 0, 1))
sketch19.addConstraint(Sketcher.Constraint("Vertical", 0))
sketch19.addConstraint(Sketcher.Constraint("Horizontal", 1))
sketch19.addConstraint(Sketcher.Constraint("Vertical", 2))
sketch19.addConstraint(Sketcher.Constraint("Horizontal", 3))
sketch19.addConstraint(Sketcher.Constraint("DistanceY", 0, 2, -1, 1, Q("0.4 in")))
sketch19.addConstraint(Sketcher.Constraint("DistanceX", 1, 1, 1, 2, Q("0.125 in")))
sketch19.addConstraint(Sketcher.Constraint("DistanceY", 0, 1, 0, 2, Q("0.023 in")))
sketch19.addConstraint(Sketcher.Constraint("DistanceX", -1, 1, 0, 2, Q("11.030857 mm")))
pad19 = body19.newObject("PartDesign::Pad", "Pad018")
pad19.Profile = sketch19
pad19.Length = Q("0.32 in")
pad19.Reversed = True
body20 = doc.addObject("PartDesign::Body", "Body019")

# Sketch on XZ plane
sketch20 = body20.newObject("Sketcher::SketchObject", "Sketch019")
sketch20.AttachmentSupport = (doc.getObject("XZ_Plane019"), [""])
sketch20.MapMode = "FlatFace"
sketch20.addGeometry(Part.LineSegment(Vector(16.5, -10.7, 0), Vector(16.5, -10.2, 0)), False)
sketch20.addGeometry(Part.LineSegment(Vector(16.5, -10.2, 0), Vector(19.7, -10.2, 0)), False)
sketch20.addGeometry(Part.LineSegment(Vector(19.7, -10.2, 0), Vector(19.7, -10.7, 0)), False)
sketch20.addGeometry(Part.LineSegment(Vector(19.7, -10.7, 0), Vector(16.5, -10.7, 0)), False)
sketch20.addConstraint(Sketcher.Constraint("Coincident", 0, 2, 1, 1))
sketch20.addConstraint(Sketcher.Constraint("Coincident", 1, 2, 2, 1))
sketch20.addConstraint(Sketcher.Constraint("Coincident", 2, 2, 3, 1))
sketch20.addConstraint(Sketcher.Constraint("Coincident", 3, 2, 0, 1))
sketch20.addConstraint(Sketcher.Constraint("Vertical", 0))
sketch20.addConstraint(Sketcher.Constraint("Horizontal", 1))
sketch20.addConstraint(Sketcher.Constraint("Vertical", 2))
sketch20.addConstraint(Sketcher.Constraint("Horizontal", 3))
sketch20.addConstraint(Sketcher.Constraint("DistanceY", 0, 2, -1, 1, Q("0.4 in")))
sketch20.addConstraint(Sketcher.Constraint("DistanceX", 1, 1, 1, 2, Q("0.125 in")))
sketch20.addConstraint(Sketcher.Constraint("DistanceY", 0, 1, 0, 2, Q("0.023 in")))
sketch20.addConstraint(Sketcher.Constraint("DistanceX", -1, 1, 0, 2, Q("16.546286 mm")))
pad20 = body20.newObject("PartDesign::Pad", "Pad019")
pad20.Profile = sketch20
pad20.Length = Q("0.32 in")
pad20.Reversed = True
body21 = doc.addObject("PartDesign::Body", "Body020")

# Sketch on XZ plane
sketch21 = body21.newObject("Sketcher::SketchObject", "Sketch020")
sketch21.AttachmentSupport = (doc.getObject("XZ_Plane020"), [""])
sketch21.MapMode = "FlatFace"
sketch21.addGeometry(Part.LineSegment(Vector(22.1, -10.7, 0), Vector(22.1, -10.2, 0)), False)
sketch21.addGeometry(Part.LineSegment(Vector(22.1, -10.2, 0), Vector(25.2, -10.2, 0)), False)
sketch21.addGeometry(Part.LineSegment(Vector(25.2, -10.2, 0), Vector(25.2, -10.7, 0)), False)
sketch21.addGeometry(Part.LineSegment(Vector(25.2, -10.7, 0), Vector(22.1, -10.7, 0)), False)
sketch21.addConstraint(Sketcher.Constraint("Coincident", 0, 2, 1, 1))
sketch21.addConstraint(Sketcher.Constraint("Coincident", 1, 2, 2, 1))
sketch21.addConstraint(Sketcher.Constraint("Coincident", 2, 2, 3, 1))
sketch21.addConstraint(Sketcher.Constraint("Coincident", 3, 2, 0, 1))
sketch21.addConstraint(Sketcher.Constraint("Vertical", 0))
sketch21.addConstraint(Sketcher.Constraint("Horizontal", 1))
sketch21.addConstraint(Sketcher.Constraint("Vertical", 2))
sketch21.addConstraint(Sketcher.Constraint("Horizontal", 3))
sketch21.addConstraint(Sketcher.Constraint("DistanceY", 0, 2, -1, 1, Q("0.4 in")))
sketch21.addConstraint(Sketcher.Constraint("DistanceX", 1, 1, 1, 2, Q("0.125 in")))
sketch21.addConstraint(Sketcher.Constraint("DistanceY", 0, 1, 0, 2, Q("0.023 in")))
sketch21.addConstraint(Sketcher.Constraint("DistanceX", -1, 1, 0, 2, Q("22.061714 mm")))
pad21 = body21.newObject("PartDesign::Pad", "Pad020")
pad21.Profile = sketch21
pad21.Length = Q("0.32 in")
pad21.Reversed = True
body22 = doc.addObject("PartDesign::Body", "Body021")

# Sketch on XZ plane
sketch22 = body22.newObject("Sketcher::SketchObject", "Sketch021")
sketch22.AttachmentSupport = (doc.getObject("XZ_Plane021"), [""])
sketch22.MapMode = "FlatFace"
sketch22.addGeometry(Part.LineSegment(Vector(27.6, -10.7, 0), Vector(27.6, -10.2, 0)), False)
sketch22.addGeometry(Part.LineSegment(Vector(27.6, -10.2, 0), Vector(30.8, -10.2, 0)), False)
sketch22.addGeometry(Part.LineSegment(Vector(30.8, -10.2, 0), Vector(30.8, -10.7, 0)), False)
sketch22.addGeometry(Part.LineSegment(Vector(30.8, -10.7, 0), Vector(27.6, -10.7, 0)), False)
sketch22.addConstraint(Sketcher.Constraint("Coincident", 0, 2, 1, 1))
sketch22.addConstraint(Sketcher.Constraint("Coincident", 1, 2, 2, 1))
sketch22.addConstraint(Sketcher.Constraint("Coincident", 2, 2, 3, 1))
sketch22.addConstraint(Sketcher.Constraint("Coincident", 3, 2, 0, 1))
sketch22.addConstraint(Sketcher.Constraint("Vertical", 0))
sketch22.addConstraint(Sketcher.Constraint("Horizontal", 1))
sketch22.addConstraint(Sketcher.Constraint("Vertical", 2))
sketch22.addConstraint(Sketcher.Constraint("Horizontal", 3))
sketch22.addConstraint(Sketcher.Constraint("DistanceY", 0, 2, -1, 1, Q("0.4 in")))
sketch22.addConstraint(Sketcher.Constraint("DistanceX", 1, 1, 1, 2, Q("0.125 in")))
sketch22.addConstraint(Sketcher.Constraint("DistanceY", 0, 1, 0, 2, Q("0.023 in")))
sketch22.addConstraint(Sketcher.Constraint("DistanceX", -1, 1, 0, 2, Q("27.577143 mm")))
pad22 = body22.newObject("PartDesign::Pad", "Pad021")
pad22.Profile = sketch22
pad22.Length = Q("0.32 in")
pad22.Reversed = True
body23 = doc.addObject("PartDesign::Body", "Body022")

# Sketch on XZ plane
sketch23 = body23.newObject("Sketcher::SketchObject", "Sketch022")
sketch23.AttachmentSupport = (doc.getObject("XZ_Plane022"), [""])
sketch23.MapMode = "FlatFace"
sketch23.addGeometry(Part.LineSegment(Vector(33.1, -10.7, 0), Vector(33.1, -10.2, 0)), False)
sketch23.addGeometry(Part.LineSegment(Vector(33.1, -10.2, 0), Vector(36.3, -10.2, 0)), False)
sketch23.addGeometry(Part.LineSegment(Vector(36.3, -10.2, 0), Vector(36.3, -10.7, 0)), False)
sketch23.addGeometry(Part.LineSegment(Vector(36.3, -10.7, 0), Vector(33.1, -10.7, 0)), False)
sketch23.addConstraint(Sketcher.Constraint("Coincident", 0, 2, 1, 1))
sketch23.addConstraint(Sketcher.Constraint("Coincident", 1, 2, 2, 1))
sketch23.addConstraint(Sketcher.Constraint("Coincident", 2, 2, 3, 1))
sketch23.addConstraint(Sketcher.Constraint("Coincident", 3, 2, 0, 1))
sketch23.addConstraint(Sketcher.Constraint("Vertical", 0))
sketch23.addConstraint(Sketcher.Constraint("Horizontal", 1))
sketch23.addConstraint(Sketcher.Constraint("Vertical", 2))
sketch23.addConstraint(Sketcher.Constraint("Horizontal", 3))
sketch23.addConstraint(Sketcher.Constraint("DistanceY", 0, 2, -1, 1, Q("0.4 in")))
sketch23.addConstraint(Sketcher.Constraint("DistanceX", 1, 1, 1, 2, Q("0.125 in")))
sketch23.addConstraint(Sketcher.Constraint("DistanceY", 0, 1, 0, 2, Q("0.023 in")))
sketch23.addConstraint(Sketcher.Constraint("DistanceX", -1, 1, 0, 2, Q("33.092571 mm")))
pad23 = body23.newObject("PartDesign::Pad", "Pad022")
pad23.Profile = sketch23
pad23.Length = Q("0.32 in")
pad23.Reversed = True
body24 = doc.addObject("PartDesign::Body", "Body023")

# Sketch on XZ plane
sketch24 = body24.newObject("Sketcher::SketchObject", "Sketch023")
sketch24.AttachmentSupport = (doc.getObject("XZ_Plane023"), [""])
sketch24.MapMode = "FlatFace"
sketch24.addGeometry(Part.LineSegment(Vector(38.6, -10.7, 0), Vector(38.6, -10.2, 0)), False)
sketch24.addGeometry(Part.LineSegment(Vector(38.6, -10.2, 0), Vector(41.8, -10.2, 0)), False)
sketch24.addGeometry(Part.LineSegment(Vector(41.8, -10.2, 0), Vector(41.8, -10.7, 0)), False)
sketch24.addGeometry(Part.LineSegment(Vector(41.8, -10.7, 0), Vector(38.6, -10.7, 0)), False)
sketch24.addConstraint(Sketcher.Constraint("Coincident", 0, 2, 1, 1))
sketch24.addConstraint(Sketcher.Constraint("Coincident", 1, 2, 2, 1))
sketch24.addConstraint(Sketcher.Constraint("Coincident", 2, 2, 3, 1))
sketch24.addConstraint(Sketcher.Constraint("Coincident", 3, 2, 0, 1))
sketch24.addConstraint(Sketcher.Constraint("Vertical", 0))
sketch24.addConstraint(Sketcher.Constraint("Horizontal", 1))
sketch24.addConstraint(Sketcher.Constraint("Vertical", 2))
sketch24.addConstraint(Sketcher.Constraint("Horizontal", 3))
sketch24.addConstraint(Sketcher.Constraint("DistanceY", 0, 2, -1, 1, Q("0.4 in")))
sketch24.addConstraint(Sketcher.Constraint("DistanceX", 1, 1, 1, 2, Q("0.125 in")))
sketch24.addConstraint(Sketcher.Constraint("DistanceY", 0, 1, 0, 2, Q("0.023 in")))
sketch24.addConstraint(Sketcher.Constraint("DistanceX", -1, 1, 0, 2, Q("1.52 in")))
pad24 = body24.newObject("PartDesign::Pad", "Pad023")
pad24.Profile = sketch24
pad24.Length = Q("0.32 in")
pad24.Reversed = True

doc.recompute()
